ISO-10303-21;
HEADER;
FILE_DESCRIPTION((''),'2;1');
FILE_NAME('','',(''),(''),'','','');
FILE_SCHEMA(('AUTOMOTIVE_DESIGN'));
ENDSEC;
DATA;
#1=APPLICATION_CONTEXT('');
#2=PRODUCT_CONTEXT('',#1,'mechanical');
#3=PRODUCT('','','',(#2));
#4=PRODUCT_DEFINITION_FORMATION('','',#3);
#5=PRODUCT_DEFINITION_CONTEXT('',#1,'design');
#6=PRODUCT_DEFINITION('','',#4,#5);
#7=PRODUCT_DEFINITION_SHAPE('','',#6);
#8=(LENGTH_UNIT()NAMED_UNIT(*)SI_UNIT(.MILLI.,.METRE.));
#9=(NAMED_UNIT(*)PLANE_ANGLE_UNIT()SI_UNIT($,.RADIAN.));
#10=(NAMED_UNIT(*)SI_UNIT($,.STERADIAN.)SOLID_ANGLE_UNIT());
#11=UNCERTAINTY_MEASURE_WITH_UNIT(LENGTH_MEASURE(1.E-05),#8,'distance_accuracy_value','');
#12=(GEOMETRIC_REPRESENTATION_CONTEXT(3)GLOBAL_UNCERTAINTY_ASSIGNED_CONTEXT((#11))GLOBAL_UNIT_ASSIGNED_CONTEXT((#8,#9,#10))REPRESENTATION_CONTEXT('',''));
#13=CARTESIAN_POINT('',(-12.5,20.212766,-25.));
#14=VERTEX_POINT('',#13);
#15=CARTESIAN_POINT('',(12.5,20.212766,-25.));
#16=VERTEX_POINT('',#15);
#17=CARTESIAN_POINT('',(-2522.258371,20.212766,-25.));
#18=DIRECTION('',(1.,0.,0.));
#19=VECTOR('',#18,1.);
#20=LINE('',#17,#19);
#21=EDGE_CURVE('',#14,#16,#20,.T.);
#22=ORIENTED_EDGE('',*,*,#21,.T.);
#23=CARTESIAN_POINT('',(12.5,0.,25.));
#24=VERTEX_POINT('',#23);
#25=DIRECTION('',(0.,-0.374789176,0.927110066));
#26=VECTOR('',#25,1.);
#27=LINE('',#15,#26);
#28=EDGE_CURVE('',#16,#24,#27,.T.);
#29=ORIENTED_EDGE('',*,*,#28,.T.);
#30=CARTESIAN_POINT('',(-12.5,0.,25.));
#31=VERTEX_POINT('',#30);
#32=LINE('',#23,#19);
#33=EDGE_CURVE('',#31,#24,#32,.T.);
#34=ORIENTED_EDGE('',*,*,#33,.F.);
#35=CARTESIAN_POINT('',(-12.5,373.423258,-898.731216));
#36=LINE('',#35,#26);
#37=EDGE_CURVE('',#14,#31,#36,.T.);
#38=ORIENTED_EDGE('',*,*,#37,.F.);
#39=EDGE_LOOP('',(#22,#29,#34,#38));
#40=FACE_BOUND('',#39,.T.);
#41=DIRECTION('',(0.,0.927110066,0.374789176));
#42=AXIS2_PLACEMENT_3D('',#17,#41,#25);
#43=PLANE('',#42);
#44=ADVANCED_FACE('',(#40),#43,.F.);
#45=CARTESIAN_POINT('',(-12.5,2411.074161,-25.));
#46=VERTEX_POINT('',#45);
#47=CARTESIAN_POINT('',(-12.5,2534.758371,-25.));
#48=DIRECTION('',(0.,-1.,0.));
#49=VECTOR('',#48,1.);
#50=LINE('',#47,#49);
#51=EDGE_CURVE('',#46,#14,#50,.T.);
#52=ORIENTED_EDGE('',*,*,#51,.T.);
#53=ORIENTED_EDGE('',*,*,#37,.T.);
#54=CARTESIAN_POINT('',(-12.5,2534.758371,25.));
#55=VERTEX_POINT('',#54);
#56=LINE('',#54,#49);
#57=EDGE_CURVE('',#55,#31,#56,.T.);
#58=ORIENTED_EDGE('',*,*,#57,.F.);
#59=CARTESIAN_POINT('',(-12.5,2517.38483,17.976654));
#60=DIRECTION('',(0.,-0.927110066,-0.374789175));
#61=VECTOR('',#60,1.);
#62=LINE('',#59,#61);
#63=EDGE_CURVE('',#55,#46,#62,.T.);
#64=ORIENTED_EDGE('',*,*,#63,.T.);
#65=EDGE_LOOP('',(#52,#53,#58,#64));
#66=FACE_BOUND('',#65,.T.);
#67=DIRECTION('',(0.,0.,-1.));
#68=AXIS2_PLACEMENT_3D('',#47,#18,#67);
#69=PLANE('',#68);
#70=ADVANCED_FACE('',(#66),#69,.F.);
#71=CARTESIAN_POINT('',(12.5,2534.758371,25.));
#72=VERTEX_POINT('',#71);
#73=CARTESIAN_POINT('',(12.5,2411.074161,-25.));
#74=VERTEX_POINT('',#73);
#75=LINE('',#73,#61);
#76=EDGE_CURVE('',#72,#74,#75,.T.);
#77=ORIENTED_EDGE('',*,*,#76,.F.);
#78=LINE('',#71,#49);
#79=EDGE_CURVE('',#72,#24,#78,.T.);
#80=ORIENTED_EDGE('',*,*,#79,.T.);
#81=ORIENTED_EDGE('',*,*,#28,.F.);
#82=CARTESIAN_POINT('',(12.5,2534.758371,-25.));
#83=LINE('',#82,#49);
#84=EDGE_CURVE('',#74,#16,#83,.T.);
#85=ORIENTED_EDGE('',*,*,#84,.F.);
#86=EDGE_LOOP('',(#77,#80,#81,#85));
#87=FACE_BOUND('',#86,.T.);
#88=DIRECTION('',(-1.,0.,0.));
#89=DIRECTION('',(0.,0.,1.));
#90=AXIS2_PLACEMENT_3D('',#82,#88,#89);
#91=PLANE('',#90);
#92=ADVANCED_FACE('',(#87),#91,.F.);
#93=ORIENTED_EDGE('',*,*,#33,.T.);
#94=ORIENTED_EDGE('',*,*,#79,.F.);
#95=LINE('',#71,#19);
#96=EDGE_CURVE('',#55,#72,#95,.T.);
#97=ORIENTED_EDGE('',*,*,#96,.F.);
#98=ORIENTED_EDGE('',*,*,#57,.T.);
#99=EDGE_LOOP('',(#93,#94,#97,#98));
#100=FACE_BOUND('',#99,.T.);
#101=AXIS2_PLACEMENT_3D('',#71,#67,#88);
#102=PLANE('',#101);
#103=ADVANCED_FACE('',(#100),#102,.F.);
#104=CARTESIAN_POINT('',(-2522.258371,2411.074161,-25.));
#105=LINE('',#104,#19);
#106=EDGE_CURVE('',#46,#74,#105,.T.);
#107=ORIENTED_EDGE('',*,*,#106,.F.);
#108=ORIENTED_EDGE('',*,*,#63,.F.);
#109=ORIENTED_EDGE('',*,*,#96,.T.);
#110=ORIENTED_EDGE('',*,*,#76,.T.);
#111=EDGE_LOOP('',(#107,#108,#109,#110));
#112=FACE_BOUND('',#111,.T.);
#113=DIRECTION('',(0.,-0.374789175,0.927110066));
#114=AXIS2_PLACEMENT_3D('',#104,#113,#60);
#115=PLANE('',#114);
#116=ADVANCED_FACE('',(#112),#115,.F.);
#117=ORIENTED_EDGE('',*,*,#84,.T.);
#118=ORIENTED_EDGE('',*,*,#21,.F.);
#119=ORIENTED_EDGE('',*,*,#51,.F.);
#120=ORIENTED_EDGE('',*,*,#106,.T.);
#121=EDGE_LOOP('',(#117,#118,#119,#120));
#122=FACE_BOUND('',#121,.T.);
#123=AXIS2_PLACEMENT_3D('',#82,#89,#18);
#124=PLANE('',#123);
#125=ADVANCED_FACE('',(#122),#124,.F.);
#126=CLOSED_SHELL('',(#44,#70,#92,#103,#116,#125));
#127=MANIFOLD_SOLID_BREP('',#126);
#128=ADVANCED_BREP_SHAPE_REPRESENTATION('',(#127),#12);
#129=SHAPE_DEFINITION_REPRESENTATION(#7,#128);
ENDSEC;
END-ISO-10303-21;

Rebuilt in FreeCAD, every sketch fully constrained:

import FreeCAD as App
import Part
import Sketcher


def add_polygon(sketch, points):
    """Adds a closed chain of lines whose ends are joined by coincident constraints."""
    first, n = sketch.GeometryCount, len(points)
    for a, b in zip(points, points[1:] + points[:1]):
        sketch.addGeometry(Part.LineSegment(App.Vector(*a, 0), App.Vector(*b, 0)), False)
    for i in range(n):
        sketch.addConstraint(Sketcher.Constraint("Coincident", first + i, 2, first + (i + 1) % n, 1))

doc = App.newDocument("Part")
body = doc.addObject("PartDesign::Body", "Body")

# Sketch on XZ plane
sketch1 = body.newObject("Sketcher::SketchObject", "Sketch")
sketch1.AttachmentSupport = (doc.getObject("XZ_Plane"), [""])
sketch1.MapMode = "FlatFace"
add_polygon(sketch1, [(-12, -25), (-12, 25), (12, 25), (12, -25)])  # lines 0-3
sketch1.addConstraint([
    Sketcher.Constraint("Vertical", 0),
    Sketcher.Constraint("Horizontal", 1),
    Sketcher.Constraint("Vertical", 2),
    Sketcher.Constraint("Horizontal", 3),
    Sketcher.Constraint("Symmetric", 0, 2, 2, 2, -1, 1),
    Sketcher.Constraint("DistanceX", 1, 1, 1, 2, 25.0),
    Sketcher.Constraint("DistanceY", 0, 1, 0, 2, 50.0),
])
pad1 = body.newObject("PartDesign::Pad", "Pad")
pad1.Profile = sketch1
pad1.Length = 2534.758371
pad1.Reversed = True

# Sketch on YZ plane
sketch2 = body.newObject("Sketcher::SketchObject", "Sketch001")
sketch2.AttachmentSupport = (doc.getObject("YZ_Plane"), [""])
sketch2.MapMode = "FlatFace"
sketch2.AttachmentOffset = App.Placement(App.Vector(0, 0, 12.5), App.Rotation())
add_polygon(sketch2, [(0, -25), (20, -25), (0, 25)])  # lines 0-2
add_polygon(sketch2, [(2411, -25), (2535, -25), (2535, 25)])  # lines 3-5
sketch2.addConstraint([
    Sketcher.Constraint("Horizontal", 0),
    Sketcher.Constraint("Vertical", 2),
    Sketcher.Constraint("Horizontal", 3),
    Sketcher.Constraint("Vertical", 4),
    Sketcher.Constraint("Symmetric", 1, 2, 2, 2, -1, 1),
    Sketcher.Constraint("Perpendicular", 1, 5),
    Sketcher.Constraint("Horizontal", 2, 2, 3, 2),
    Sketcher.Constraint("Horizontal", 1, 2, 4, 2),
    Sketcher.Constraint("DistanceY", 2, 2, 2, 1, 50.0),
    Sketcher.Constraint("DistanceX", 3, 1, 3, 2, 123.684211),
    Sketcher.Constraint("DistanceX", -1, 1, 3, 2, 2534.758371),
])
pocket1 = body.newObject("PartDesign::Pocket", "Pocket")
pocket1.Profile = sketch2
pocket1.Length = 2534.758371

doc.recompute()
